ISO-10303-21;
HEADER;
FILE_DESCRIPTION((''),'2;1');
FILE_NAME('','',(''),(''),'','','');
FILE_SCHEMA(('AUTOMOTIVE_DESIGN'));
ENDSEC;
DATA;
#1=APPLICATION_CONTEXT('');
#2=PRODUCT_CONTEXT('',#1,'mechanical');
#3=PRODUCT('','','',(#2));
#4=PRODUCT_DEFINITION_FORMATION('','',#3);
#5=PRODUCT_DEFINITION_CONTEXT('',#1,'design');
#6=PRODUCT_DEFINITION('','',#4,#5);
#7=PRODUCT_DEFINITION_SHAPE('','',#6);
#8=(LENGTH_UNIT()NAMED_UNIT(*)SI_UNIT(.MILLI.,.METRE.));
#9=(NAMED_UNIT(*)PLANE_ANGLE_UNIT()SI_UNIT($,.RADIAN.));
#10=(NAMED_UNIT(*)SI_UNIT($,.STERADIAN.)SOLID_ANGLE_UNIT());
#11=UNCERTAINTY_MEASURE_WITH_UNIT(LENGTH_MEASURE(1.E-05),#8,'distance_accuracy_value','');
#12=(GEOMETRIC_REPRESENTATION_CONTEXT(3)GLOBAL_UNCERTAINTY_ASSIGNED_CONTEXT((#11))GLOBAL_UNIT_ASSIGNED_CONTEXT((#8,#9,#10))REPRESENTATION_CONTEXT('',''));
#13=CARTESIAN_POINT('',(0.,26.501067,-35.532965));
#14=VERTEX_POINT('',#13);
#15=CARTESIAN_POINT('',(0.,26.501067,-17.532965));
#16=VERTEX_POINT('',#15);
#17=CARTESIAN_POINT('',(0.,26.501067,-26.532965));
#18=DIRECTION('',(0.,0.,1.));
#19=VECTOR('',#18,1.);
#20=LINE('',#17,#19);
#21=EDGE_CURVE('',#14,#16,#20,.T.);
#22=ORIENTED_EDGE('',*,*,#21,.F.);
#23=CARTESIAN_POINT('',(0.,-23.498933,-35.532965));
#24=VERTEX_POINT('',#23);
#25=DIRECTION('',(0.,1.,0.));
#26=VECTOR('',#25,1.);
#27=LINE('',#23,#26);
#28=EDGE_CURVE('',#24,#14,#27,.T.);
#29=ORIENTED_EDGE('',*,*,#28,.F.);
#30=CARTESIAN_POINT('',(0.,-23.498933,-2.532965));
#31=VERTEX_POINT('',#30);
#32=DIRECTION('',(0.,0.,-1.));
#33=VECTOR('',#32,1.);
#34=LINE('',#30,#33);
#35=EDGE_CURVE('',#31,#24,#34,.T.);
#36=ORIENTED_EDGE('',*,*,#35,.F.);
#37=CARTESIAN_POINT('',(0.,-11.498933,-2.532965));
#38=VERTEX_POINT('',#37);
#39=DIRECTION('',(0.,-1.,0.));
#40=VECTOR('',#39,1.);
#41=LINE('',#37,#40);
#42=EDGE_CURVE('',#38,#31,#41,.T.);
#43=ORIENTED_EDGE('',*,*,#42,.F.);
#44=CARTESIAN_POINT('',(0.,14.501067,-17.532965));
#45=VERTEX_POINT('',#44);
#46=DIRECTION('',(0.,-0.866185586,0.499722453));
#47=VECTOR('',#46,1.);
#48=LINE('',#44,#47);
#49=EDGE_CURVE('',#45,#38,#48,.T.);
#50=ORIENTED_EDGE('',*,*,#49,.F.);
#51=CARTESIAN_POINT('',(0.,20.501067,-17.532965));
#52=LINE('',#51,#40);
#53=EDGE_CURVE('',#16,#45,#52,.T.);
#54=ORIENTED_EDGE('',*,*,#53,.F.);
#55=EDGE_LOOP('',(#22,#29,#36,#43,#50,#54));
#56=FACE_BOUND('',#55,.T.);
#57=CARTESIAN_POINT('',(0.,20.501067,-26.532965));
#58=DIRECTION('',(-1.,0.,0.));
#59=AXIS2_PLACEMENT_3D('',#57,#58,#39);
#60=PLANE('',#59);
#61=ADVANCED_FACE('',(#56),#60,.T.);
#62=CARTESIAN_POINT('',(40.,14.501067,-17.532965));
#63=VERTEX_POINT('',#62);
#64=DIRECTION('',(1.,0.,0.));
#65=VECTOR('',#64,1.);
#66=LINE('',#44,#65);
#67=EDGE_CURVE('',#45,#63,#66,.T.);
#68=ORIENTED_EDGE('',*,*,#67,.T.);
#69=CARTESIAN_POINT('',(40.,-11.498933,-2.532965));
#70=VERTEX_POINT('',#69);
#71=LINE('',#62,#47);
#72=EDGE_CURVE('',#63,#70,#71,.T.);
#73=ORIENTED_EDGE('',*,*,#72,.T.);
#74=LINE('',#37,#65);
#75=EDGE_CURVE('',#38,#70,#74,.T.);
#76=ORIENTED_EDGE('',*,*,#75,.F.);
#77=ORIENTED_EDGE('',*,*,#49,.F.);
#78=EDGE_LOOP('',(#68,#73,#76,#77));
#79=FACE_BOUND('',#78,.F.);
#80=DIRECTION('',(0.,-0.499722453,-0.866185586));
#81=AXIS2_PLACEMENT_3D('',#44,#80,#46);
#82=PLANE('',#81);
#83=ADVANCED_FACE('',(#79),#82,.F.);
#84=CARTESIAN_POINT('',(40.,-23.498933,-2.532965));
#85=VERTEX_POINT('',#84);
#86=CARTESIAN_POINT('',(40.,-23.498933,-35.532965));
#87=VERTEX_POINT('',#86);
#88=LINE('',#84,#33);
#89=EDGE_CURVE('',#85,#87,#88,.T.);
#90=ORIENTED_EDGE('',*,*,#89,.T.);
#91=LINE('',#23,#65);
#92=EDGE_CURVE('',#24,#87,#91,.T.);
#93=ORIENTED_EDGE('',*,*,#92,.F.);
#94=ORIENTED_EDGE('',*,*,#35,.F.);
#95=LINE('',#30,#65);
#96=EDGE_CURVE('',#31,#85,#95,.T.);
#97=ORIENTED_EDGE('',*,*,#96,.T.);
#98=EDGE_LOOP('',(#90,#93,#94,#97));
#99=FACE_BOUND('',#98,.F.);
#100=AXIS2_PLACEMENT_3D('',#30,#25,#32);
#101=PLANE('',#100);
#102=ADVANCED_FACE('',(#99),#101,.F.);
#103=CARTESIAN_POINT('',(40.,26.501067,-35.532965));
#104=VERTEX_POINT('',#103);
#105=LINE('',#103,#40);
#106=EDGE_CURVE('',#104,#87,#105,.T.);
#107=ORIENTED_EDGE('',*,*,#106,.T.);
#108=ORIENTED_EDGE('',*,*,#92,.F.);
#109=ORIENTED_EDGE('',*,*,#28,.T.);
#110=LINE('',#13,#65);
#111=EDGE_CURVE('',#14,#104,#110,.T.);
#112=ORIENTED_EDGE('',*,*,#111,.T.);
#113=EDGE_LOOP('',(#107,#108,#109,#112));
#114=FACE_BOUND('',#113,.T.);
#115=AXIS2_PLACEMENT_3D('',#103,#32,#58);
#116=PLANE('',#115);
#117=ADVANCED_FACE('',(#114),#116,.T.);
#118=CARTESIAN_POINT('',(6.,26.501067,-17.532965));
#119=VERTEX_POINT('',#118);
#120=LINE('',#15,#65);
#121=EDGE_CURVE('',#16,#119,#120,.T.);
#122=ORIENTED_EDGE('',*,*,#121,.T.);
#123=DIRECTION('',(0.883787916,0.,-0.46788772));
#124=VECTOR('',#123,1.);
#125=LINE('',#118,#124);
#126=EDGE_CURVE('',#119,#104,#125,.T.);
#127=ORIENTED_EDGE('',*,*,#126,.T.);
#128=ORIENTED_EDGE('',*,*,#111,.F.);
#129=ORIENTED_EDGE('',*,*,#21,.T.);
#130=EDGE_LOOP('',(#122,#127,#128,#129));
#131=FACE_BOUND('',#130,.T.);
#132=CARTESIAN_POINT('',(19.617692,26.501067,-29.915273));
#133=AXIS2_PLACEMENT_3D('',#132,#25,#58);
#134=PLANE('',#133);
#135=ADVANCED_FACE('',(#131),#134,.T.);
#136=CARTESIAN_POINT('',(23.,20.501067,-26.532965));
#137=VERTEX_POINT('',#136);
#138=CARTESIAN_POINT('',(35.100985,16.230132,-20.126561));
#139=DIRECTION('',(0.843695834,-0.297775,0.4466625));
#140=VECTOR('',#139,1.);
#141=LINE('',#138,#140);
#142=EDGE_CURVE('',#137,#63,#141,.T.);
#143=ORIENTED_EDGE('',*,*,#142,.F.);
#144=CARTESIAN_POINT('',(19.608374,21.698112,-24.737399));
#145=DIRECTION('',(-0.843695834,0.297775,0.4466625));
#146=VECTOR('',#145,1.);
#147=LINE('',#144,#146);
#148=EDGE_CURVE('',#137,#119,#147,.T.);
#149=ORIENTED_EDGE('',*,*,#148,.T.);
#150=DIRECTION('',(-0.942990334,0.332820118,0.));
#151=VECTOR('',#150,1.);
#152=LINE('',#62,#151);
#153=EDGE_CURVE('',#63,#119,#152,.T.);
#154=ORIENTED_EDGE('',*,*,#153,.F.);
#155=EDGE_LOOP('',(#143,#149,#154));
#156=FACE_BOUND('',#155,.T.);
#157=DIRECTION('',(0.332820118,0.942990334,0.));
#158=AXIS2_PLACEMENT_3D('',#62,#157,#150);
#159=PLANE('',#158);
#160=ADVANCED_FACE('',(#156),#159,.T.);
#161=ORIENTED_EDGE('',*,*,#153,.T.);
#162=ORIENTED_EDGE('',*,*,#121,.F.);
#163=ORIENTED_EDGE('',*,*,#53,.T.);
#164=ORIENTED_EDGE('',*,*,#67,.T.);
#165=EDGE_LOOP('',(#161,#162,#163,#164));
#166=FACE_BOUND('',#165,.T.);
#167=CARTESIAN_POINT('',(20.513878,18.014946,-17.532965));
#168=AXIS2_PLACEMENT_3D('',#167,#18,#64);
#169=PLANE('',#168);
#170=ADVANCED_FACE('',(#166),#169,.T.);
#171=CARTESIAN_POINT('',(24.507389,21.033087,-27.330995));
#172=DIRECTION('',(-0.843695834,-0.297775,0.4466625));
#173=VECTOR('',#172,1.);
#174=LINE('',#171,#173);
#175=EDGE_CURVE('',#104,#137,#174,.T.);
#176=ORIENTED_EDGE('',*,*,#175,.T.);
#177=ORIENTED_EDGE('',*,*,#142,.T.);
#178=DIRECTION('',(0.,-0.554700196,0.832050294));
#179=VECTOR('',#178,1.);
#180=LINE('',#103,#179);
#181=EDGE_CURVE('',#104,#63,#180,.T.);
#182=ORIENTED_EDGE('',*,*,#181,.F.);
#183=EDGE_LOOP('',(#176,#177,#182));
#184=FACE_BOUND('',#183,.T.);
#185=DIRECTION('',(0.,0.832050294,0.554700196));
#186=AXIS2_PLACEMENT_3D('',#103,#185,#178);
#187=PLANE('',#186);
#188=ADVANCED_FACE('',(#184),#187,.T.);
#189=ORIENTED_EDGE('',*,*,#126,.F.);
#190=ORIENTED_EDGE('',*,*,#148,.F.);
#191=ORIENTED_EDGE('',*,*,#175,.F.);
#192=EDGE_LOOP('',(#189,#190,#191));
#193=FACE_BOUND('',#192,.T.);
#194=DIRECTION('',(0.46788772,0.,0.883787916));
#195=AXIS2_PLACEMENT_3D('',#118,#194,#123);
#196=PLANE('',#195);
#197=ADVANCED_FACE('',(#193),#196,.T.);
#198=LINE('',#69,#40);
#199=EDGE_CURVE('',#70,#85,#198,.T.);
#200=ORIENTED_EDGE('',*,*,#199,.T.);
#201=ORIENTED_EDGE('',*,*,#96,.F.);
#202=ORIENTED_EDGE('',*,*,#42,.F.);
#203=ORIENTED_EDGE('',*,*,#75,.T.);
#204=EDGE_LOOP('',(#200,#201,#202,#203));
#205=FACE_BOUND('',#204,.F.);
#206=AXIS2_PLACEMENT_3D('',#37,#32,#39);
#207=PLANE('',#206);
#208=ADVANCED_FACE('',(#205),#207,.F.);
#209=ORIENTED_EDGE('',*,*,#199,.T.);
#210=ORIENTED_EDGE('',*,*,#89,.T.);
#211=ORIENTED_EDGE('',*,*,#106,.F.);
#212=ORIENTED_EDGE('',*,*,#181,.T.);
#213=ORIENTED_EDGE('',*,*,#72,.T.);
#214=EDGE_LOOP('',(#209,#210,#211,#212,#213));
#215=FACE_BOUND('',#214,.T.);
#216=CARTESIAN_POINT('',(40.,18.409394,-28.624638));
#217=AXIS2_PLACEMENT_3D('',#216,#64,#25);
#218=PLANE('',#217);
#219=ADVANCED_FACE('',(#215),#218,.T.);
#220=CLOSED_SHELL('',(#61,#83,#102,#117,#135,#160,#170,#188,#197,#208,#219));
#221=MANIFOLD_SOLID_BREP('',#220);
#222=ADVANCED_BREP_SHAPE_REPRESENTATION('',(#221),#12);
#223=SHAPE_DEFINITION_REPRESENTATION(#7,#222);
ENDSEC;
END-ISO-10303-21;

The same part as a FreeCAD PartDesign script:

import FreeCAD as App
import Part
import Sketcher
from FreeCAD import Vector
Q = App.Units.Quantity

doc = App.newDocument("Part")
body = doc.addObject("PartDesign::Body", "Body")

# Sketch on YZ plane
sketch1 = doc.addObject("Sketcher::SketchObject", "Sketch")
body.addObject(sketch1)
sketch1.AttachmentSupport = (doc.YZ_Plane, [""])
sketch1.MapMode = "FlatFace"
sketch1.addGeometry(Part.LineSegment(Vector(-23, -36, 0), Vector(15, -36, 0)), False)
sketch1.addGeometry(Part.LineSegment(Vector(15, -36, 0), Vector(15, -18, 0)), False)
sketch1.addGeometry(Part.LineSegment(Vector(15, -18, 0), Vector(-11, -3, 0)), False)
sketch1.addGeometry(Part.LineSegment(Vector(-11, -3, 0), Vector(-23, -3, 0)), False)
sketch1.addGeometry(Part.LineSegment(Vector(-23, -3, 0), Vector(-23, -36, 0)), False)
sketch1.addConstraint(Sketcher.Constraint("Coincident", 0, 2, 1, 1))
sketch1.addConstraint(Sketcher.Constraint("Coincident", 1, 2, 2, 1))
sketch1.addConstraint(Sketcher.Constraint("Coincident", 2, 2, 3, 1))
sketch1.addConstraint(Sketcher.Constraint("Coincident", 3, 2, 4, 1))
sketch1.addConstraint(Sketcher.Constraint("Coincident", 4, 2, 0, 1))
sketch1.addConstraint(Sketcher.Constraint("Horizontal", 0))
sketch1.addConstraint(Sketcher.Constraint("Vertical", 1))
sketch1.addConstraint(Sketcher.Constraint("Horizontal", 3))
sketch1.addConstraint(Sketcher.Constraint("Vertical", 4))
sketch1.addConstraint(Sketcher.Constraint("DistanceX", 0, 1, 0, 2, Q("38 mm")))
sketch1.addConstraint(Sketcher.Constraint("DistanceX", 3, 2, 3, 1, Q("12 mm")))
sketch1.addConstraint(Sketcher.Constraint("DistanceY", 1, 1, 1, 2, Q("18 mm")))
sketch1.addConstraint(Sketcher.Constraint("DistanceY", 4, 2, 4, 1, Q("33 mm")))
sketch1.addConstraint(Sketcher.Constraint("DistanceX", -1, 1, 0, 2, Q("14.501067 mm")))
sketch1.addConstraint(Sketcher.Constraint("DistanceY", 0, 2, -1, 1, Q("35.532965 mm")))
pad1 = doc.addObject("PartDesign::Pad", "Pad")
body.addObject(pad1)
pad1.Profile = sketch1
pad1.Length = 40

# Sketch on YZ plane
sketch2 = doc.addObject("Sketcher::SketchObject", "Sketch001")
body.addObject(sketch2)
sketch2.AttachmentSupport = (doc.YZ_Plane, [""])
sketch2.MapMode = "FlatFace"
sketch2.addGeometry(Part.LineSegment(Vector(27, -18, 0), Vector(27, -36, 0)), False)
sketch2.addGeometry(Part.LineSegment(Vector(27, -36, 0), Vector(15, -36, 0)), False)
sketch2.addGeometry(Part.LineSegment(Vector(15, -36, 0), Vector(15, -18, 0)), False)
sketch2.addGeometry(Part.LineSegment(Vector(15, -18, 0), Vector(27, -18, 0)), False)
sketch2.addConstraint(Sketcher.Constraint("Coincident", 0, 2, 1, 1))
sketch2.addConstraint(Sketcher.Constraint("Coincident", 1, 2, 2, 1))
sketch2.addConstraint(Sketcher.Constraint("Coincident", 2, 2, 3, 1))
sketch2.addConstraint(Sketcher.Constraint("Coincident", 3, 2, 0, 1))
sketch2.addConstraint(Sketcher.Constraint("Vertical", 0))
sketch2.addConstraint(Sketcher.Constraint("Horizontal", 1))
sketch2.addConstraint(Sketcher.Constraint("Vertical", 2))
sketch2.addConstraint(Sketcher.Constraint("Horizontal", 3))
sketch2.addConstraint(Sketcher.Constraint("DistanceX", 1, 2, 1, 1, Q("12 mm")))
sketch2.addConstraint(Sketcher.Constraint("DistanceY", 0, 2, 0, 1, Q("18 mm")))
sketch2.addConstraint(Sketcher.Constraint("DistanceX", -1, 1, 0, 2, Q("26.501067 mm")))
sketch2.addConstraint(Sketcher.Constraint("DistanceY", 0, 2, -1, 1, Q("35.532965 mm")))
pad2 = doc.addObject("PartDesign::Pad", "Pad001")
body.addObject(pad2)
pad2.Profile = sketch2
pad2.Length = 6

# Sketch on XZ plane
sketch3 = doc.addObject("Sketcher::SketchObject", "Sketch002")
body.addObject(sketch3)
sketch3.AttachmentSupport = (doc.XZ_Plane, [""])
sketch3.MapMode = "FlatFace"
sketch3.AttachmentOffset = App.Placement(Vector(0, 0, -26.501067), App.Rotation())
sketch3.addGeometry(Part.LineSegment(Vector(40, -36, 0), Vector(6, -36, 0)), False)
sketch3.addGeometry(Part.LineSegment(Vector(6, -36, 0), Vector(6, -18, 0)), False)
sketch3.addGeometry(Part.LineSegment(Vector(6, -18, 0), Vector(40, -36, 0)), False)
sketch3.addConstraint(Sketcher.Constraint("Coincident", 0, 2, 1, 1))
sketch3.addConstraint(Sketcher.Constraint("Coincident", 1, 2, 2, 1))
sketch3.addConstraint(Sketcher.Constraint("Coincident", 2, 2, 0, 1))
sketch3.addConstraint(Sketcher.Constraint("Horizontal", 0))
sketch3.addConstraint(Sketcher.Constraint("Vertical", 1))
sketch3.addConstraint(Sketcher.Constraint("DistanceX", 0, 2, 0, 1, Q("34 mm")))
sketch3.addConstraint(Sketcher.Constraint("DistanceY", 1, 1, 1, 2, Q("18 mm")))
sketch3.addConstraint(Sketcher.Constraint("DistanceX", -1, 1, 0, 2, Q("6 mm")))
sketch3.addConstraint(Sketcher.Constraint("DistanceY", 0, 2, -1, 1, Q("35.532965 mm")))
pad3 = doc.addObject("PartDesign::Pad", "Pad002")
body.addObject(pad3)
pad3.Profile = sketch3
pad3.Length = 25.4

# Sketch on XY plane
sketch4 = doc.addObject("Sketcher::SketchObject", "Sketch003")
body.addObject(sketch4)
sketch4.AttachmentSupport = (doc.XY_Plane, [""])
sketch4.MapMode = "FlatFace"
sketch4.AttachmentOffset = App.Placement(Vector(0, 0, -17.532965), App.Rotation())
sketch4.addGeometry(Part.LineSegment(Vector(6, 27, 0), Vector(6, 15, 0)), False)
sketch4.addGeometry(Part.LineSegment(Vector(6, 15, 0), Vector(40, 15, 0)), False)
sketch4.addGeometry(Part.LineSegment(Vector(40, 15, 0), Vector(6, 27, 0)), False)
sketch4.addConstraint(Sketcher.Constraint("Coincident", 0, 2, 1, 1))
sketch4.addConstraint(Sketcher.Constraint("Coincident", 1, 2, 2, 1))
sketch4.addConstraint(Sketcher.Constraint("Coincident", 2, 2, 0, 1))
sketch4.addConstraint(Sketcher.Constraint("Vertical", 0))
sketch4.addConstraint(Sketcher.Constraint("Horizontal", 1))
sketch4.addConstraint(Sketcher.Constraint("DistanceX", 1, 1, 1, 2, Q("34 mm")))
sketch4.addConstraint(Sketcher.Constraint("DistanceY", 0, 2, 0, 1, Q("12 mm")))
sketch4.addConstraint(Sketcher.Constraint("DistanceX", -1, 1, 0, 2, Q("6 mm")))
sketch4.addConstraint(Sketcher.Constraint("DistanceY", -1, 1, 0, 2, Q("14.501067 mm")))
pad4 = doc.addObject("PartDesign::Pad", "Pad003")
body.addObject(pad4)
pad4.Profile = sketch4
pad4.Length = 13.462
pad4.Reversed = True

# Sketch on YZ plane
sketch5 = doc.addObject("Sketcher::SketchObject", "Sketch004")
body.addObject(sketch5)
sketch5.AttachmentSupport = (doc.YZ_Plane, [""])
sketch5.MapMode = "FlatFace"
sketch5.AttachmentOffset = App.Placement(Vector(0, 0, 40), App.Rotation())
sketch5.addGeometry(Part.LineSegment(Vector(15, -18, 0), Vector(15, -36, 0)), False)
sketch5.addGeometry(Part.LineSegment(Vector(15, -36, 0), Vector(27, -36, 0)), False)
sketch5.addGeometry(Part.LineSegment(Vector(27, -36, 0), Vector(15, -18, 0)), False)
sketch5.addConstraint(Sketcher.Constraint("Coincident", 0, 2, 1, 1))
sketch5.addConstraint(Sketcher.Constraint("Coincident", 1, 2, 2, 1))
sketch5.addConstraint(Sketcher.Constraint("Coincident", 2, 2, 0, 1))
sketch5.addConstraint(Sketcher.Constraint("Vertical", 0))
sketch5.addConstraint(Sketcher.Constraint("Horizontal", 1))
sketch5.addConstraint(Sketcher.Constraint("DistanceX", 1, 1, 1, 2, Q("12 mm")))
sketch5.addConstraint(Sketcher.Constraint("DistanceY", 0, 2, 0, 1, Q("18 mm")))
sketch5.addConstraint(Sketcher.Constraint("DistanceX", -1, 1, 0, 2, Q("14.501067 mm")))
sketch5.addConstraint(Sketcher.Constraint("DistanceY", 0, 2, -1, 1, Q("35.532965 mm")))
pad5 = doc.addObject("PartDesign::Pad", "Pad004")
body.addObject(pad5)
pad5.Profile = sketch5
pad5.Length = 31.496
pad5.Reversed = True

doc.recompute()
